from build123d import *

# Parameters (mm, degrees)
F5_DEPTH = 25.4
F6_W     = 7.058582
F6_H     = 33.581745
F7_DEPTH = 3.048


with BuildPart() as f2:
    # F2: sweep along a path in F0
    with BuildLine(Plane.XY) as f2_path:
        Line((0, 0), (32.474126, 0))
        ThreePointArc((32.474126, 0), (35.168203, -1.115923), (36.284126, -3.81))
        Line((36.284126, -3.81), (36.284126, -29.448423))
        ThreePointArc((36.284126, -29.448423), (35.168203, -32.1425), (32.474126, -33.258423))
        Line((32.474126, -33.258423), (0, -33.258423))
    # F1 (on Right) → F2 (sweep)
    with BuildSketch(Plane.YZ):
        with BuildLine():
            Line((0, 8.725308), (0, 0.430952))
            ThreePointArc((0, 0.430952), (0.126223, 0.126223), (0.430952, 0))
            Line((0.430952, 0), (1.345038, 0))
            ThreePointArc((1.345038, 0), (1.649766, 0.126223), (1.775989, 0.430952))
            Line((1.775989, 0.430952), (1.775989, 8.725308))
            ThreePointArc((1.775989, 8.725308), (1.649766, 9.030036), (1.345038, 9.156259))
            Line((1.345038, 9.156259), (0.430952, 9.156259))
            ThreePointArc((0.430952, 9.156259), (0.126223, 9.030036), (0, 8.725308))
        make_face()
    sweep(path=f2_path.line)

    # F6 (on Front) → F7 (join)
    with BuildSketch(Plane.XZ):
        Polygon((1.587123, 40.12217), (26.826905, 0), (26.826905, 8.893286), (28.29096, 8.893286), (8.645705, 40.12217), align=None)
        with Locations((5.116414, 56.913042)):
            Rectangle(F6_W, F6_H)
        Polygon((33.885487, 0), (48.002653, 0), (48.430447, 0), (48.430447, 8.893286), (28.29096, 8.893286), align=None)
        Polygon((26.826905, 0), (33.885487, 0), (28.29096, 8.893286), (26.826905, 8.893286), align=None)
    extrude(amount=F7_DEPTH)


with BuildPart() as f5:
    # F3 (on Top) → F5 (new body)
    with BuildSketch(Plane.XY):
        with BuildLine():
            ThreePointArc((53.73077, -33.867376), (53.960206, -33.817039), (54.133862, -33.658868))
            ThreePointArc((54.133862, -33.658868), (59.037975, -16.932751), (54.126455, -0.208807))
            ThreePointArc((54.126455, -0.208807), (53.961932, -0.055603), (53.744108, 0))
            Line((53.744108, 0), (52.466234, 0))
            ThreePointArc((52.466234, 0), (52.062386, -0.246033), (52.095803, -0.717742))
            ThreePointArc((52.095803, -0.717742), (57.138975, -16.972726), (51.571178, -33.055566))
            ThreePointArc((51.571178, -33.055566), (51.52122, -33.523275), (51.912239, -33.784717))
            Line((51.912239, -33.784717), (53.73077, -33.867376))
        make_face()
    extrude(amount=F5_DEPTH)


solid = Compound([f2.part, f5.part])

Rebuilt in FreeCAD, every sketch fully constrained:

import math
import FreeCAD as App
import Part
import Sketcher
from FreeCAD import Vector
Q = App.Units.Quantity

doc = App.newDocument("Part")
body = doc.addObject("PartDesign::Body", "Body")

sketch1 = doc.addObject("Sketcher::SketchObject", "Sketch")
body.addObject(sketch1)
sketch1.AttachmentSupport = (doc.YZ_Plane, [""])
sketch1.MapMode = "FlatFace"
sketch1.addGeometry(Part.LineSegment(Vector(0, 8.725308, 0), Vector(0, 0.430952, 0)), False)
sketch1.addGeometry(Part.ArcOfCircle(Part.Circle(Vector(0.430952, 0.430952, 0), Vector(0, 0, 1), 0.430952), math.radians(-179.999963), math.radians(-90.000037)), False)
sketch1.addGeometry(Part.LineSegment(Vector(0.430952, 0, 0), Vector(1.345038, 0, 0)), False)
sketch1.addGeometry(Part.ArcOfCircle(Part.Circle(Vector(1.345037, 0.430952, 0), Vector(0, 0, 1), 0.430952), math.radians(-89.99983), math.radians(-0.000037)), False)
sketch1.addGeometry(Part.LineSegment(Vector(1.775989, 0.430952, 0), Vector(1.775989, 8.725308, 0)), False)
sketch1.addGeometry(Part.ArcOfCircle(Part.Circle(Vector(1.345037, 8.725307, 0), Vector(0, 0, 1), 0.430952), math.radians(0.00017), math.radians(89.99983)), False)
sketch1.addGeometry(Part.LineSegment(Vector(1.345038, 9.156259, 0), Vector(0.430952, 9.156259, 0)), False)
sketch1.addGeometry(Part.ArcOfCircle(Part.Circle(Vector(0.430952, 8.725307, 0), Vector(0, 0, 1), 0.430952), math.radians(90.000037), math.radians(179.99983)), False)
sketch1.addConstraint(Sketcher.Constraint("Tangent", 0, 2, 1, 1))
sketch1.addConstraint(Sketcher.Constraint("Tangent", 1, 2, 2, 1))
sketch1.addConstraint(Sketcher.Constraint("Coincident", 2, 2, 3, 1))
sketch1.addConstraint(Sketcher.Constraint("Tangent", 3, 2, 4, 1))
sketch1.addConstraint(Sketcher.Constraint("Coincident", 4, 2, 5, 1))
sketch1.addConstraint(Sketcher.Constraint("Coincident", 5, 2, 6, 1))
sketch1.addConstraint(Sketcher.Constraint("Tangent", 6, 2, 7, 1))
sketch1.addConstraint(Sketcher.Constraint("Coincident", 7, 2, 0, 1))
sketch1.addConstraint(Sketcher.Constraint("Vertical", 0))
sketch1.addConstraint(Sketcher.Constraint("Horizontal", 2))
sketch1.addConstraint(Sketcher.Constraint("Vertical", 4))
sketch1.addConstraint(Sketcher.Constraint("Horizontal", 6))
sketch1.addConstraint(Sketcher.Constraint("Equal", 1, 3))
sketch1.addConstraint(Sketcher.Constraint("Equal", 3, 5))
sketch1.addConstraint(Sketcher.Constraint("Equal", 5, 7))
sketch1.addConstraint(Sketcher.Constraint("PointOnObject", 0, 2, -2))
sketch1.addConstraint(Sketcher.Constraint("PointOnObject", 1, 2, -1))
sketch1.addConstraint(Sketcher.Constraint("Horizontal", 7, 3, 4, 2))
sketch1.addConstraint(Sketcher.Constraint("Horizontal", 4, 2, 7, 2))
sketch1.addConstraint(Sketcher.Constraint("Vertical", 5, 3, 2, 2))
sketch1.addConstraint(Sketcher.Constraint("Vertical", 2, 2, 5, 2))
sketch1.addConstraint(Sketcher.Constraint("Radius", 1, 0.430952))
sketch1.addConstraint(Sketcher.Constraint("DistanceX", 2, 1, 2, 2, 0.914086))
sketch1.addConstraint(Sketcher.Constraint("DistanceY", 0, 2, 0, 1, 8.294356))

sketch2 = doc.addObject("Sketcher::SketchObject", "Sketch001")
body.addObject(sketch2)
sketch2.AttachmentSupport = (doc.XY_Plane, [""])
sketch2.MapMode = "FlatFace"
sketch2.addGeometry(Part.LineSegment(Vector(0, 0, 0), Vector(32.474126, 0, 0)), False)
sketch2.addGeometry(Part.ArcOfCircle(Part.Circle(Vector(32.474127, -3.809999, 0), Vector(0, 0, 1), 3.809999), math.radians(-0.000008), math.radians(90.000008)), False)
sketch2.addGeometry(Part.LineSegment(Vector(36.284126, -3.81, 0), Vector(36.284126, -29.448423, 0)), False)
sketch2.addGeometry(Part.ArcOfCircle(Part.Circle(Vector(32.474127, -29.448424, 0), Vector(0, 0, 1), 3.809999), math.radians(-90.000008), math.radians(0.000008)), False)
sketch2.addGeometry(Part.LineSegment(Vector(32.474126, -33.258423, 0), Vector(0, -33.258423, 0)), False)
sketch2.addConstraint(Sketcher.Constraint("Tangent", 0, 2, 1, 2))
sketch2.addConstraint(Sketcher.Constraint("Tangent", 1, 1, 2, 1))
sketch2.addConstraint(Sketcher.Constraint("Tangent", 2, 2, 3, 2))
sketch2.addConstraint(Sketcher.Constraint("Tangent", 3, 1, 4, 1))
sketch2.addConstraint(Sketcher.Constraint("Horizontal", 0))
sketch2.addConstraint(Sketcher.Constraint("Vertical", 2))
sketch2.addConstraint(Sketcher.Constraint("Horizontal", 4))
sketch2.addConstraint(Sketcher.Constraint("Coincident", 0, 1, -1, 1))
sketch2.addConstraint(Sketcher.Constraint("Equal", 1, 3))
sketch2.addConstraint(Sketcher.Constraint("PointOnObject", 4, 2, -2))
sketch2.addConstraint(Sketcher.Constraint("Radius", 1, Q("0.15 in")))
sketch2.addConstraint(Sketcher.Constraint("DistanceX", 0, 1, 0, 2, 32.474126))
sketch2.addConstraint(Sketcher.Constraint("DistanceY", 2, 2, 2, 1, 25.638423))
doc.recompute()

additivepipe = doc.addObject("PartDesign::AdditivePipe", "AdditivePipe")
body.addObject(additivepipe)
additivepipe.Profile = sketch1
additivepipe.Spine = (sketch2, ["Edge1", "Edge2", "Edge3", "Edge4", "Edge5"])

sketch3 = doc.addObject("Sketcher::SketchObject", "Sketch002")
body.addObject(sketch3)
sketch3.AttachmentSupport = (doc.XZ_Plane, [""])
sketch3.MapMode = "FlatFace"
sketch3.addGeometry(Part.LineSegment(Vector(48.430447, 8.893286, 0), Vector(28.29096, 8.893286, 0)), False)
sketch3.addGeometry(Part.LineSegment(Vector(28.29096, 8.893286, 0), Vector(8.645705, 40.12217, 0)), False)
sketch3.addGeometry(Part.LineSegment(Vector(8.645705, 40.12217, 0), Vector(8.645705, 73.703914, 0)), False)
sketch3.addGeometry(Part.LineSegment(Vector(8.645705, 73.703914, 0), Vector(1.587123, 73.703914, 0)), False)
sketch3.addGeometry(Part.LineSegment(Vector(1.587123, 73.703914, 0), Vector(1.587123, 40.12217, 0)), False)
sketch3.addGeometry(Part.LineSegment(Vector(1.587123, 40.12217, 0), Vector(26.826905, 0, 0)), False)
sketch3.addGeometry(Part.LineSegment(Vector(26.826905, 0, 0), Vector(48.430447, 0, 0)), False)
sketch3.addGeometry(Part.LineSegment(Vector(48.430447, 0, 0), Vector(48.430447, 8.893286, 0)), False)
sketch3.addConstraint(Sketcher.Constraint("Coincident", 0, 2, 1, 1))
sketch3.addConstraint(Sketcher.Constraint("Coincident", 1, 2, 2, 1))
sketch3.addConstraint(Sketcher.Constraint("Coincident", 2, 2, 3, 1))
sketch3.addConstraint(Sketcher.Constraint("Coincident", 3, 2, 4, 1))
sketch3.addConstraint(Sketcher.Constraint("Coincident", 4, 2, 5, 1))
sketch3.addConstraint(Sketcher.Constraint("Coincident", 5, 2, 6, 1))
sketch3.addConstraint(Sketcher.Constraint("Coincident", 6, 2, 7, 1))
sketch3.addConstraint(Sketcher.Constraint("Coincident", 7, 2, 0, 1))
sketch3.addConstraint(Sketcher.Constraint("Horizontal", 0))
sketch3.addConstraint(Sketcher.Constraint("Vertical", 2))
sketch3.addConstraint(Sketcher.Constraint("Horizontal", 3))
sketch3.addConstraint(Sketcher.Constraint("Vertical", 4))
sketch3.addConstraint(Sketcher.Constraint("Horizontal", 6))
sketch3.addConstraint(Sketcher.Constraint("Vertical", 7))
sketch3.addConstraint(Sketcher.Constraint("PointOnObject", 5, 2, -1))
sketch3.addConstraint(Sketcher.Constraint("Parallel", 1, 5))
sketch3.addConstraint(Sketcher.Constraint("Horizontal", 1, 2, 4, 2))
sketch3.addConstraint(Sketcher.Constraint("DistanceX", 3, 2, 3, 1, 7.058582))
sketch3.addConstraint(Sketcher.Constraint("DistanceX", 1, 2, 5, 2, 18.1812))
sketch3.addConstraint(Sketcher.Constraint("Distance", 5, 47.400792))
sketch3.addConstraint(Sketcher.Constraint("DistanceX", 0, 2, 0, 1, 20.139487))
sketch3.addConstraint(Sketcher.Constraint("DistanceX", 6, 1, 6, 2, 21.603542))
sketch3.addConstraint(Sketcher.Constraint("DistanceY", 2, 1, 2, 2, 33.581744))
sketch3.addConstraint(Sketcher.Constraint("DistanceX", -1, 1, 0, 2, 28.29096))
pad1 = doc.addObject("PartDesign::Pad", "Pad")
body.addObject(pad1)
pad1.Profile = sketch3
pad1.Length = Q("0.12 in")
body2 = doc.addObject("PartDesign::Body", "Body001")

sketch4 = doc.addObject("Sketcher::SketchObject", "Sketch003")
body2.addObject(sketch4)
sketch4.AttachmentSupport = (doc.getObject("XY_Plane001"), [""])
sketch4.MapMode = "FlatFace"
sketch4.addGeometry(Part.ArcOfCircle(Part.Circle(Vector(53.751406, -33.413384, 0), Vector(0, 0, 1), 0.454461), math.radians(-92.602619), math.radians(-32.694907)), False)
sketch4.addGeometry(Part.ArcOfCircle(Part.Circle(Vector(28.085992, -16.939605, 0), Vector(0, 0, 1), 30.951984), math.radians(-32.695059), math.radians(32.720433)), False)
sketch4.addGeometry(Part.ArcOfCircle(Part.Circle(Vector(53.744108, -0.454461, 0), Vector(0, 0, 1), 0.454461), math.radians(32.720344), math.radians(90.000062)), False)
sketch4.addGeometry(Part.LineSegment(Vector(53.744108, 0, 0), Vector(52.466234, 0, 0)), False)
sketch4.addGeometry(Part.ArcOfCircle(Part.Circle(Vector(52.466234, -0.454462, 0), Vector(0, 0, 1), 0.454462), math.radians(89.999949), math.radians(215.402985)), False)
sketch4.addGeometry(Part.ArcOfCircle(Part.Circle(Vector(29.84817, -16.52998, 0), Vector(0, 0, 1), 27.294396), math.radians(-37.261741), math.radians(35.402856)), False)
sketch4.addGeometry(Part.ArcOfCircle(Part.Circle(Vector(51.932875, -33.330723, 0), Vector(0, 0, 1), 0.454463), math.radians(142.738357), math.radians(267.397408)), False)
sketch4.addGeometry(Part.LineSegment(Vector(51.912239, -33.784717, 0), Vector(53.73077, -33.867376, 0)), False)
sketch4.addConstraint(Sketcher.Constraint("Coincident", 0, 2, 1, 1))
sketch4.addConstraint(Sketcher.Constraint("Tangent", 1, 2, 2, 1))
sketch4.addConstraint(Sketcher.Constraint("Tangent", 2, 2, 3, 1))
sketch4.addConstraint(Sketcher.Constraint("Tangent", 3, 2, 4, 1))
sketch4.addConstraint(Sketcher.Constraint("Coincident", 4, 2, 5, 2))
sketch4.addConstraint(Sketcher.Constraint("Tangent", 5, 1, 6, 1))
sketch4.addConstraint(Sketcher.Constraint("Tangent", 6, 2, 7, 1))
sketch4.addConstraint(Sketcher.Constraint("Tangent", 7, 2, 0, 1))
sketch4.addConstraint(Sketcher.Constraint("Horizontal", 3))
sketch4.addConstraint(Sketcher.Constraint("Equal", 0, 2))
sketch4.addConstraint(Sketcher.Constraint("Equal", 2, 4))
sketch4.addConstraint(Sketcher.Constraint("Equal", 4, 6))
sketch4.addConstraint(Sketcher.Constraint("PointOnObject", 2, 2, -1))
sketch4.addConstraint(Sketcher.Constraint("Radius", 0, 0.454461))
sketch4.addConstraint(Sketcher.Constraint("Radius", 1, 30.951984))
sketch4.addConstraint(Sketcher.Constraint("Radius", 5, 27.294396))
sketch4.addConstraint(Sketcher.Constraint("DistanceY", 0, 2, 5, 1, 0.603302))
sketch4.addConstraint(Sketcher.Constraint("Distance", 7, 1.820409))
sketch4.addConstraint(Sketcher.Constraint("DistanceX", 3, 2, 3, 1, 1.277874))
sketch4.addConstraint(Sketcher.Constraint("DistanceX", -1, 1, 1, 3, 28.085992))
sketch4.addConstraint(Sketcher.Constraint("DistanceX", -1, 1, 2, 3, 53.744108))
sketch4.addConstraint(Sketcher.Constraint("DistanceX", -1, 1, 5, 3, 29.84817))
sketch4.addConstraint(Sketcher.Constraint("DistanceX", -1, 1, 0, 2, 54.133862))
sketch4.addConstraint(Sketcher.Constraint("DistanceY", 4, 2, -1, 1, 0.717742))
pad2 = doc.addObject("PartDesign::Pad", "Pad001")
body2.addObject(pad2)
pad2.Profile = sketch4
pad2.Length = Q("1 in")

doc.recompute()
